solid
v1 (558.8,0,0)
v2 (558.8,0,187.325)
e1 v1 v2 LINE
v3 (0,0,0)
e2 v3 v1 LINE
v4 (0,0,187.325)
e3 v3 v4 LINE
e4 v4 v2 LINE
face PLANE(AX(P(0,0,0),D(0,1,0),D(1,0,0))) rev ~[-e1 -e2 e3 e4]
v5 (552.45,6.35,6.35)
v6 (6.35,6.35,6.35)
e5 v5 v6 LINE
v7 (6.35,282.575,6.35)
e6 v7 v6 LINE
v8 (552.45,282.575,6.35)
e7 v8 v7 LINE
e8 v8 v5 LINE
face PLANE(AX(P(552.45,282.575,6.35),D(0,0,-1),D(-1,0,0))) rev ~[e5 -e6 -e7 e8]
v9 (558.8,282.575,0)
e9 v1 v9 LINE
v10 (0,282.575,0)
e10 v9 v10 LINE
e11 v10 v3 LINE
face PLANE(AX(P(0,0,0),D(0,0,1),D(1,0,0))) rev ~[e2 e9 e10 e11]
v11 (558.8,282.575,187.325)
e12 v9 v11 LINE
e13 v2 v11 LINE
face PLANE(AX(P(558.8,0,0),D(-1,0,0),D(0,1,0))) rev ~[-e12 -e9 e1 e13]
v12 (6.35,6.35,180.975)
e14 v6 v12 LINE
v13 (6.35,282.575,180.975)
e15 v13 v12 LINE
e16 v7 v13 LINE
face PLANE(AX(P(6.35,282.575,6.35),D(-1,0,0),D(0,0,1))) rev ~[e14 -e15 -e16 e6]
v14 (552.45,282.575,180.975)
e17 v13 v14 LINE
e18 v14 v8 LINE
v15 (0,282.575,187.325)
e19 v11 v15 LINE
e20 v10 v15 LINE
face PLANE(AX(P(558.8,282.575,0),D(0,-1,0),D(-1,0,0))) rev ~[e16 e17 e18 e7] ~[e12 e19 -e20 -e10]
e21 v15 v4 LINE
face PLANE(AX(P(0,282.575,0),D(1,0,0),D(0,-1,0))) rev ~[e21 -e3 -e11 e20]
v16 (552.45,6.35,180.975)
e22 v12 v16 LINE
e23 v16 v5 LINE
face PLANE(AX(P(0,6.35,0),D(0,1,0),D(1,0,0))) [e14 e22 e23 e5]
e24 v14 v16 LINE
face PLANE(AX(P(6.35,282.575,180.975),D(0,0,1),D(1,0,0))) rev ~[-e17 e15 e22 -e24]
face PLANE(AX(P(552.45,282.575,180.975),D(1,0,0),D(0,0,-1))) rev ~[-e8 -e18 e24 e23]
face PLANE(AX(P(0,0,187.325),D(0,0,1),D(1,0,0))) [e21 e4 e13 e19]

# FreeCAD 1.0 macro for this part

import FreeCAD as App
import Part
import Sketcher
from FreeCAD import Vector
Q = App.Units.Quantity


def add_polygon(sketch, points):
    """Adds a closed chain of lines whose ends are joined by coincident constraints."""
    first, n = sketch.GeometryCount, len(points)
    for a, b in zip(points, points[1:] + points[:1]):
        sketch.addGeometry(Part.LineSegment(App.Vector(*a, 0), App.Vector(*b, 0)), False)
    for i in range(n):
        sketch.addConstraint(Sketcher.Constraint("Coincident", first + i, 2, first + (i + 1) % n, 1))

doc = App.newDocument("Part")
params = doc.addObject("Spreadsheet::Sheet", "Params")
for row, (alias, value) in enumerate([
    ("sketch1_width", "22 in"),
    ("sketch1_height", "11.125 in"),
    ("pad1_length", "7.375 in"),
    ("sketch2_width", "21.5 in"),
    ("sketch2_height", "6.875 in"),
    ("pocket1_length", "10.875 in"),
], start=1):
    params.set(f"A{row}", alias)
    params.set(f"B{row}", "=" + value)
    params.setAlias(f"B{row}", alias)

body = doc.addObject("PartDesign::Body", "Body")

# Sketch on XY plane
sketch1 = body.newObject("Sketcher::SketchObject", "Sketch")
sketch1.AttachmentSupport = (doc.getObject("XY_Plane"), [""])
sketch1.MapMode = "FlatFace"
add_polygon(sketch1, [(0, 282.575), (0, 0), (558.8, 0), (558.8, 282.575)])  # lines 0-3
sketch1.addConstraint([
    Sketcher.Constraint("Vertical", 0),
    Sketcher.Constraint("Horizontal", 1),
    Sketcher.Constraint("Vertical", 2),
    Sketcher.Constraint("Horizontal", 3),
    Sketcher.Constraint("Coincident", 0, 2, -1, 1),
    Sketcher.Constraint("DistanceX", 1, 1, 1, 2, Q("22 in")),
    Sketcher.Constraint("DistanceY", 0, 2, 0, 1, Q("11.125 in")),
])
sketch1.setExpression("Constraints[9]", "Params.sketch1_width")
sketch1.setExpression("Constraints[10]", "Params.sketch1_height")
pad1 = body.newObject("PartDesign::Pad", "Pad")
pad1.Profile = sketch1
pad1.setExpression("Length", "Params.pad1_length")

# Sketch on XZ plane
sketch2 = body.newObject("Sketcher::SketchObject", "Sketch001")
sketch2.AttachmentSupport = (doc.getObject("XZ_Plane"), [""])
sketch2.MapMode = "FlatFace"
sketch2.AttachmentOffset = App.Placement(Vector(0, 0, -11.125 * 25.4), App.Rotation())
add_polygon(sketch2, [(6.35, 6.35), (6.35, 180.975), (552.45, 180.975), (552.45, 6.35)])  # lines 0-3
sketch2.addConstraint([
    Sketcher.Constraint("Vertical", 0),
    Sketcher.Constraint("Horizontal", 1),
    Sketcher.Constraint("Vertical", 2),
    Sketcher.Constraint("Horizontal", 3),
    Sketcher.Constraint("DistanceX", 1, 1, 1, 2, Q("21.5 in")),
    Sketcher.Constraint("DistanceY", 0, 1, 0, 2, Q("6.875 in")),
    Sketcher.Constraint("DistanceX", -1, 1, 0, 2, Q("0.25 in")),
    Sketcher.Constraint("DistanceY", -1, 1, 2, 2, Q("0.25 in")),
])
sketch2.setExpression("Constraints[8]", "Params.sketch2_width")
sketch2.setExpression("Constraints[9]", "Params.sketch2_height")
pocket1 = body.newObject("PartDesign::Pocket", "Pocket")
pocket1.Profile = sketch2
pocket1.setExpression("Length", "Params.pocket1_length")
pocket1.Reversed = True

doc.recompute()
